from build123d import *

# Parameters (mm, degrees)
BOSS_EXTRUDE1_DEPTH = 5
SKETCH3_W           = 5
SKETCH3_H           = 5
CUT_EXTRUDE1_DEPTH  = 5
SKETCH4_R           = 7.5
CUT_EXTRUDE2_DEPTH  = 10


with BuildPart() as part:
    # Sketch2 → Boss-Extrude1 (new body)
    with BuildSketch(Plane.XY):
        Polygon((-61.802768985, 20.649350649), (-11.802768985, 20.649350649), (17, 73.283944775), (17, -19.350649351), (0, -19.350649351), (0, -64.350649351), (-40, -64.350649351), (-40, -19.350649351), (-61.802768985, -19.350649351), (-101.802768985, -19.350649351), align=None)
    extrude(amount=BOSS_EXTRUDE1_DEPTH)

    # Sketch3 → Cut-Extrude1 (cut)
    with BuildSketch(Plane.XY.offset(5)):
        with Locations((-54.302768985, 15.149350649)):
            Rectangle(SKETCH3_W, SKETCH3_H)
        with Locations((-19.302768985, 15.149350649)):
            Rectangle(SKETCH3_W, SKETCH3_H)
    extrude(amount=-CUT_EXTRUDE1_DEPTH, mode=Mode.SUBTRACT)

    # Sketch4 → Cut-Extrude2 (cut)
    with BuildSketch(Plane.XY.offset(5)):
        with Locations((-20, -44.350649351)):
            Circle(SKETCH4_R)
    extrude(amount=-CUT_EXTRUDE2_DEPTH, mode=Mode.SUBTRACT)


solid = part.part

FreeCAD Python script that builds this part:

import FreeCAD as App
import Part
import Sketcher

V = App.Vector
Q = App.Units.Quantity

doc = App.newDocument("Part")
body = doc.addObject("PartDesign::Body", "Body")

# Sketch on XY plane
sketch1 = doc.addObject("Sketcher::SketchObject", "Sketch")
body.addObject(sketch1)
sketch1.AttachmentSupport = (doc.XY_Plane, [""])
sketch1.MapMode = "FlatFace"
sketch1.addGeometry([
    Part.LineSegment(V(-12, 21, 0), V(-62, 21, 0)),  # 0
    Part.LineSegment(V(-62, 21, 0), V(-102, -19, 0)),  # 1
    Part.LineSegment(V(-102, -19, 0), V(-40, -19, 0)),  # 2
    Part.LineSegment(V(-40, -19, 0), V(-40, -64, 0)),  # 3
    Part.LineSegment(V(-40, -64, 0), V(0, -64, 0)),  # 4
    Part.LineSegment(V(0, -64, 0), V(0, -19, 0)),  # 5
    Part.LineSegment(V(0, -19, 0), V(17, -19, 0)),  # 6
    Part.LineSegment(V(17, -19, 0), V(17, 73, 0)),  # 7
    Part.LineSegment(V(17, 73, 0), V(-12, 21, 0)),  # 8
], False)
sketch1.addConstraint([
    Sketcher.Constraint("Coincident", 0, 2, 1, 1),
    Sketcher.Constraint("Coincident", 1, 2, 2, 1),
    Sketcher.Constraint("Coincident", 2, 2, 3, 1),
    Sketcher.Constraint("Coincident", 3, 2, 4, 1),
    Sketcher.Constraint("Coincident", 4, 2, 5, 1),
    Sketcher.Constraint("Coincident", 5, 2, 6, 1),
    Sketcher.Constraint("Coincident", 6, 2, 7, 1),
    Sketcher.Constraint("Coincident", 7, 2, 8, 1),
    Sketcher.Constraint("Coincident", 8, 2, 0, 1),
    Sketcher.Constraint("Horizontal", 0),
    Sketcher.Constraint("Horizontal", 2),
    Sketcher.Constraint("Vertical", 3),
    Sketcher.Constraint("Horizontal", 4),
    Sketcher.Constraint("Vertical", 5),
    Sketcher.Constraint("Horizontal", 6),
    Sketcher.Constraint("Vertical", 7),
    Sketcher.Constraint("PointOnObject", 4, 2, -2),
    Sketcher.Constraint("Horizontal", 2, 2, 5, 2),
    Sketcher.Constraint("DistanceX", 0, 2, 0, 1, 50.0),
    Sketcher.Constraint("DistanceX", 4, 1, 4, 2, 40.0),
    Sketcher.Constraint("DistanceX", 6, 1, 6, 2, 17.0),
    Sketcher.Constraint("DistanceY", 3, 2, 3, 1, 45.0),
    Sketcher.Constraint("Angle", 1, Q("-135 deg")),
    Sketcher.Constraint("Distance", 8, 60.0),
    Sketcher.Constraint("DistanceX", 1, 2, 0, 2, 40.0),
    Sketcher.Constraint("DistanceX", 2, 1, 2, 2, 61.802769),
    Sketcher.Constraint("DistanceY", -1, 1, 0, 2, 20.649351),
])
pad1 = doc.addObject("PartDesign::Pad", "Pad")
body.addObject(pad1)
pad1.Profile = sketch1
pad1.Length = 5

# Sketch on XY plane
sketch2 = doc.addObject("Sketcher::SketchObject", "Sketch001")
body.addObject(sketch2)
sketch2.AttachmentSupport = (doc.XY_Plane, [""])
sketch2.MapMode = "FlatFace"
sketch2.AttachmentOffset = App.Placement(V(0, 0, 5), App.Rotation())
sketch2.addGeometry([
    Part.LineSegment(V(-56.8, 17.6, 0), V(-56.8, 12.6, 0)),  # 0
    Part.LineSegment(V(-56.8, 12.6, 0), V(-51.8, 12.6, 0)),  # 1
    Part.LineSegment(V(-51.8, 12.6, 0), V(-51.8, 17.6, 0)),  # 2
    Part.LineSegment(V(-51.8, 17.6, 0), V(-56.8, 17.6, 0)),  # 3
    Part.LineSegment(V(-21.8, 17.6, 0), V(-21.8, 12.6, 0)),  # 4
    Part.LineSegment(V(-21.8, 12.6, 0), V(-16.8, 12.6, 0)),  # 5
    Part.LineSegment(V(-16.8, 12.6, 0), V(-16.8, 17.6, 0)),  # 6
    Part.LineSegment(V(-16.8, 17.6, 0), V(-21.8, 17.6, 0)),  # 7
], False)
sketch2.addConstraint([
    Sketcher.Constraint("Coincident", 0, 2, 1, 1),
    Sketcher.Constraint("Coincident", 1, 2, 2, 1),
    Sketcher.Constraint("Coincident", 2, 2, 3, 1),
    Sketcher.Constraint("Coincident", 3, 2, 0, 1),
    Sketcher.Constraint("Coincident", 4, 2, 5, 1),
    Sketcher.Constraint("Coincident", 5, 2, 6, 1),
    Sketcher.Constraint("Coincident", 6, 2, 7, 1),
    Sketcher.Constraint("Coincident", 7, 2, 4, 1),
    Sketcher.Constraint("Vertical", 0),
    Sketcher.Constraint("Horizontal", 1),
    Sketcher.Constraint("Vertical", 2),
    Sketcher.Constraint("Horizontal", 3),
    Sketcher.Constraint("Vertical", 4),
    Sketcher.Constraint("Horizontal", 5),
    Sketcher.Constraint("Vertical", 6),
    Sketcher.Constraint("Horizontal", 7),
    Sketcher.Constraint("Horizontal", 1, 2, 4, 2),
    Sketcher.Constraint("Horizontal", 3, 2, 6, 2),
    Sketcher.Constraint("Equal", 3, 5),
    Sketcher.Constraint("Equal", 7, 0),
    Sketcher.Constraint("DistanceX", 1, 1, 1, 2, 5.0),
    Sketcher.Constraint("DistanceX", 1, 2, 4, 2, 30.0),
    Sketcher.Constraint("DistanceX", 0, 2, -1, 1, 56.802769),
    Sketcher.Constraint("DistanceY", -1, 1, 0, 2, 12.649351),
])
pocket1 = doc.addObject("PartDesign::Pocket", "Pocket")
body.addObject(pocket1)
pocket1.Profile = sketch2
pocket1.Length = 5

# Sketch on XY plane
sketch3 = doc.addObject("Sketcher::SketchObject", "Sketch002")
body.addObject(sketch3)
sketch3.AttachmentSupport = (doc.XY_Plane, [""])
sketch3.MapMode = "FlatFace"
sketch3.AttachmentOffset = App.Placement(V(0, 0, 5), App.Rotation())
sketch3.addGeometry(Part.Circle(V(-20, -44, 0), V(0, 0, 1), 8), False)
sketch3.addConstraint([
    Sketcher.Constraint("Diameter", 0, 15.0),
    Sketcher.Constraint("DistanceX", 0, 3, -1, 1, 20.0),
    Sketcher.Constraint("DistanceY", 0, 3, -1, 1, 44.350649),
])
pocket2 = doc.addObject("PartDesign::Pocket", "Pocket001")
body.addObject(pocket2)
pocket2.Profile = sketch3
pocket2.Length = 10

doc.recompute()
